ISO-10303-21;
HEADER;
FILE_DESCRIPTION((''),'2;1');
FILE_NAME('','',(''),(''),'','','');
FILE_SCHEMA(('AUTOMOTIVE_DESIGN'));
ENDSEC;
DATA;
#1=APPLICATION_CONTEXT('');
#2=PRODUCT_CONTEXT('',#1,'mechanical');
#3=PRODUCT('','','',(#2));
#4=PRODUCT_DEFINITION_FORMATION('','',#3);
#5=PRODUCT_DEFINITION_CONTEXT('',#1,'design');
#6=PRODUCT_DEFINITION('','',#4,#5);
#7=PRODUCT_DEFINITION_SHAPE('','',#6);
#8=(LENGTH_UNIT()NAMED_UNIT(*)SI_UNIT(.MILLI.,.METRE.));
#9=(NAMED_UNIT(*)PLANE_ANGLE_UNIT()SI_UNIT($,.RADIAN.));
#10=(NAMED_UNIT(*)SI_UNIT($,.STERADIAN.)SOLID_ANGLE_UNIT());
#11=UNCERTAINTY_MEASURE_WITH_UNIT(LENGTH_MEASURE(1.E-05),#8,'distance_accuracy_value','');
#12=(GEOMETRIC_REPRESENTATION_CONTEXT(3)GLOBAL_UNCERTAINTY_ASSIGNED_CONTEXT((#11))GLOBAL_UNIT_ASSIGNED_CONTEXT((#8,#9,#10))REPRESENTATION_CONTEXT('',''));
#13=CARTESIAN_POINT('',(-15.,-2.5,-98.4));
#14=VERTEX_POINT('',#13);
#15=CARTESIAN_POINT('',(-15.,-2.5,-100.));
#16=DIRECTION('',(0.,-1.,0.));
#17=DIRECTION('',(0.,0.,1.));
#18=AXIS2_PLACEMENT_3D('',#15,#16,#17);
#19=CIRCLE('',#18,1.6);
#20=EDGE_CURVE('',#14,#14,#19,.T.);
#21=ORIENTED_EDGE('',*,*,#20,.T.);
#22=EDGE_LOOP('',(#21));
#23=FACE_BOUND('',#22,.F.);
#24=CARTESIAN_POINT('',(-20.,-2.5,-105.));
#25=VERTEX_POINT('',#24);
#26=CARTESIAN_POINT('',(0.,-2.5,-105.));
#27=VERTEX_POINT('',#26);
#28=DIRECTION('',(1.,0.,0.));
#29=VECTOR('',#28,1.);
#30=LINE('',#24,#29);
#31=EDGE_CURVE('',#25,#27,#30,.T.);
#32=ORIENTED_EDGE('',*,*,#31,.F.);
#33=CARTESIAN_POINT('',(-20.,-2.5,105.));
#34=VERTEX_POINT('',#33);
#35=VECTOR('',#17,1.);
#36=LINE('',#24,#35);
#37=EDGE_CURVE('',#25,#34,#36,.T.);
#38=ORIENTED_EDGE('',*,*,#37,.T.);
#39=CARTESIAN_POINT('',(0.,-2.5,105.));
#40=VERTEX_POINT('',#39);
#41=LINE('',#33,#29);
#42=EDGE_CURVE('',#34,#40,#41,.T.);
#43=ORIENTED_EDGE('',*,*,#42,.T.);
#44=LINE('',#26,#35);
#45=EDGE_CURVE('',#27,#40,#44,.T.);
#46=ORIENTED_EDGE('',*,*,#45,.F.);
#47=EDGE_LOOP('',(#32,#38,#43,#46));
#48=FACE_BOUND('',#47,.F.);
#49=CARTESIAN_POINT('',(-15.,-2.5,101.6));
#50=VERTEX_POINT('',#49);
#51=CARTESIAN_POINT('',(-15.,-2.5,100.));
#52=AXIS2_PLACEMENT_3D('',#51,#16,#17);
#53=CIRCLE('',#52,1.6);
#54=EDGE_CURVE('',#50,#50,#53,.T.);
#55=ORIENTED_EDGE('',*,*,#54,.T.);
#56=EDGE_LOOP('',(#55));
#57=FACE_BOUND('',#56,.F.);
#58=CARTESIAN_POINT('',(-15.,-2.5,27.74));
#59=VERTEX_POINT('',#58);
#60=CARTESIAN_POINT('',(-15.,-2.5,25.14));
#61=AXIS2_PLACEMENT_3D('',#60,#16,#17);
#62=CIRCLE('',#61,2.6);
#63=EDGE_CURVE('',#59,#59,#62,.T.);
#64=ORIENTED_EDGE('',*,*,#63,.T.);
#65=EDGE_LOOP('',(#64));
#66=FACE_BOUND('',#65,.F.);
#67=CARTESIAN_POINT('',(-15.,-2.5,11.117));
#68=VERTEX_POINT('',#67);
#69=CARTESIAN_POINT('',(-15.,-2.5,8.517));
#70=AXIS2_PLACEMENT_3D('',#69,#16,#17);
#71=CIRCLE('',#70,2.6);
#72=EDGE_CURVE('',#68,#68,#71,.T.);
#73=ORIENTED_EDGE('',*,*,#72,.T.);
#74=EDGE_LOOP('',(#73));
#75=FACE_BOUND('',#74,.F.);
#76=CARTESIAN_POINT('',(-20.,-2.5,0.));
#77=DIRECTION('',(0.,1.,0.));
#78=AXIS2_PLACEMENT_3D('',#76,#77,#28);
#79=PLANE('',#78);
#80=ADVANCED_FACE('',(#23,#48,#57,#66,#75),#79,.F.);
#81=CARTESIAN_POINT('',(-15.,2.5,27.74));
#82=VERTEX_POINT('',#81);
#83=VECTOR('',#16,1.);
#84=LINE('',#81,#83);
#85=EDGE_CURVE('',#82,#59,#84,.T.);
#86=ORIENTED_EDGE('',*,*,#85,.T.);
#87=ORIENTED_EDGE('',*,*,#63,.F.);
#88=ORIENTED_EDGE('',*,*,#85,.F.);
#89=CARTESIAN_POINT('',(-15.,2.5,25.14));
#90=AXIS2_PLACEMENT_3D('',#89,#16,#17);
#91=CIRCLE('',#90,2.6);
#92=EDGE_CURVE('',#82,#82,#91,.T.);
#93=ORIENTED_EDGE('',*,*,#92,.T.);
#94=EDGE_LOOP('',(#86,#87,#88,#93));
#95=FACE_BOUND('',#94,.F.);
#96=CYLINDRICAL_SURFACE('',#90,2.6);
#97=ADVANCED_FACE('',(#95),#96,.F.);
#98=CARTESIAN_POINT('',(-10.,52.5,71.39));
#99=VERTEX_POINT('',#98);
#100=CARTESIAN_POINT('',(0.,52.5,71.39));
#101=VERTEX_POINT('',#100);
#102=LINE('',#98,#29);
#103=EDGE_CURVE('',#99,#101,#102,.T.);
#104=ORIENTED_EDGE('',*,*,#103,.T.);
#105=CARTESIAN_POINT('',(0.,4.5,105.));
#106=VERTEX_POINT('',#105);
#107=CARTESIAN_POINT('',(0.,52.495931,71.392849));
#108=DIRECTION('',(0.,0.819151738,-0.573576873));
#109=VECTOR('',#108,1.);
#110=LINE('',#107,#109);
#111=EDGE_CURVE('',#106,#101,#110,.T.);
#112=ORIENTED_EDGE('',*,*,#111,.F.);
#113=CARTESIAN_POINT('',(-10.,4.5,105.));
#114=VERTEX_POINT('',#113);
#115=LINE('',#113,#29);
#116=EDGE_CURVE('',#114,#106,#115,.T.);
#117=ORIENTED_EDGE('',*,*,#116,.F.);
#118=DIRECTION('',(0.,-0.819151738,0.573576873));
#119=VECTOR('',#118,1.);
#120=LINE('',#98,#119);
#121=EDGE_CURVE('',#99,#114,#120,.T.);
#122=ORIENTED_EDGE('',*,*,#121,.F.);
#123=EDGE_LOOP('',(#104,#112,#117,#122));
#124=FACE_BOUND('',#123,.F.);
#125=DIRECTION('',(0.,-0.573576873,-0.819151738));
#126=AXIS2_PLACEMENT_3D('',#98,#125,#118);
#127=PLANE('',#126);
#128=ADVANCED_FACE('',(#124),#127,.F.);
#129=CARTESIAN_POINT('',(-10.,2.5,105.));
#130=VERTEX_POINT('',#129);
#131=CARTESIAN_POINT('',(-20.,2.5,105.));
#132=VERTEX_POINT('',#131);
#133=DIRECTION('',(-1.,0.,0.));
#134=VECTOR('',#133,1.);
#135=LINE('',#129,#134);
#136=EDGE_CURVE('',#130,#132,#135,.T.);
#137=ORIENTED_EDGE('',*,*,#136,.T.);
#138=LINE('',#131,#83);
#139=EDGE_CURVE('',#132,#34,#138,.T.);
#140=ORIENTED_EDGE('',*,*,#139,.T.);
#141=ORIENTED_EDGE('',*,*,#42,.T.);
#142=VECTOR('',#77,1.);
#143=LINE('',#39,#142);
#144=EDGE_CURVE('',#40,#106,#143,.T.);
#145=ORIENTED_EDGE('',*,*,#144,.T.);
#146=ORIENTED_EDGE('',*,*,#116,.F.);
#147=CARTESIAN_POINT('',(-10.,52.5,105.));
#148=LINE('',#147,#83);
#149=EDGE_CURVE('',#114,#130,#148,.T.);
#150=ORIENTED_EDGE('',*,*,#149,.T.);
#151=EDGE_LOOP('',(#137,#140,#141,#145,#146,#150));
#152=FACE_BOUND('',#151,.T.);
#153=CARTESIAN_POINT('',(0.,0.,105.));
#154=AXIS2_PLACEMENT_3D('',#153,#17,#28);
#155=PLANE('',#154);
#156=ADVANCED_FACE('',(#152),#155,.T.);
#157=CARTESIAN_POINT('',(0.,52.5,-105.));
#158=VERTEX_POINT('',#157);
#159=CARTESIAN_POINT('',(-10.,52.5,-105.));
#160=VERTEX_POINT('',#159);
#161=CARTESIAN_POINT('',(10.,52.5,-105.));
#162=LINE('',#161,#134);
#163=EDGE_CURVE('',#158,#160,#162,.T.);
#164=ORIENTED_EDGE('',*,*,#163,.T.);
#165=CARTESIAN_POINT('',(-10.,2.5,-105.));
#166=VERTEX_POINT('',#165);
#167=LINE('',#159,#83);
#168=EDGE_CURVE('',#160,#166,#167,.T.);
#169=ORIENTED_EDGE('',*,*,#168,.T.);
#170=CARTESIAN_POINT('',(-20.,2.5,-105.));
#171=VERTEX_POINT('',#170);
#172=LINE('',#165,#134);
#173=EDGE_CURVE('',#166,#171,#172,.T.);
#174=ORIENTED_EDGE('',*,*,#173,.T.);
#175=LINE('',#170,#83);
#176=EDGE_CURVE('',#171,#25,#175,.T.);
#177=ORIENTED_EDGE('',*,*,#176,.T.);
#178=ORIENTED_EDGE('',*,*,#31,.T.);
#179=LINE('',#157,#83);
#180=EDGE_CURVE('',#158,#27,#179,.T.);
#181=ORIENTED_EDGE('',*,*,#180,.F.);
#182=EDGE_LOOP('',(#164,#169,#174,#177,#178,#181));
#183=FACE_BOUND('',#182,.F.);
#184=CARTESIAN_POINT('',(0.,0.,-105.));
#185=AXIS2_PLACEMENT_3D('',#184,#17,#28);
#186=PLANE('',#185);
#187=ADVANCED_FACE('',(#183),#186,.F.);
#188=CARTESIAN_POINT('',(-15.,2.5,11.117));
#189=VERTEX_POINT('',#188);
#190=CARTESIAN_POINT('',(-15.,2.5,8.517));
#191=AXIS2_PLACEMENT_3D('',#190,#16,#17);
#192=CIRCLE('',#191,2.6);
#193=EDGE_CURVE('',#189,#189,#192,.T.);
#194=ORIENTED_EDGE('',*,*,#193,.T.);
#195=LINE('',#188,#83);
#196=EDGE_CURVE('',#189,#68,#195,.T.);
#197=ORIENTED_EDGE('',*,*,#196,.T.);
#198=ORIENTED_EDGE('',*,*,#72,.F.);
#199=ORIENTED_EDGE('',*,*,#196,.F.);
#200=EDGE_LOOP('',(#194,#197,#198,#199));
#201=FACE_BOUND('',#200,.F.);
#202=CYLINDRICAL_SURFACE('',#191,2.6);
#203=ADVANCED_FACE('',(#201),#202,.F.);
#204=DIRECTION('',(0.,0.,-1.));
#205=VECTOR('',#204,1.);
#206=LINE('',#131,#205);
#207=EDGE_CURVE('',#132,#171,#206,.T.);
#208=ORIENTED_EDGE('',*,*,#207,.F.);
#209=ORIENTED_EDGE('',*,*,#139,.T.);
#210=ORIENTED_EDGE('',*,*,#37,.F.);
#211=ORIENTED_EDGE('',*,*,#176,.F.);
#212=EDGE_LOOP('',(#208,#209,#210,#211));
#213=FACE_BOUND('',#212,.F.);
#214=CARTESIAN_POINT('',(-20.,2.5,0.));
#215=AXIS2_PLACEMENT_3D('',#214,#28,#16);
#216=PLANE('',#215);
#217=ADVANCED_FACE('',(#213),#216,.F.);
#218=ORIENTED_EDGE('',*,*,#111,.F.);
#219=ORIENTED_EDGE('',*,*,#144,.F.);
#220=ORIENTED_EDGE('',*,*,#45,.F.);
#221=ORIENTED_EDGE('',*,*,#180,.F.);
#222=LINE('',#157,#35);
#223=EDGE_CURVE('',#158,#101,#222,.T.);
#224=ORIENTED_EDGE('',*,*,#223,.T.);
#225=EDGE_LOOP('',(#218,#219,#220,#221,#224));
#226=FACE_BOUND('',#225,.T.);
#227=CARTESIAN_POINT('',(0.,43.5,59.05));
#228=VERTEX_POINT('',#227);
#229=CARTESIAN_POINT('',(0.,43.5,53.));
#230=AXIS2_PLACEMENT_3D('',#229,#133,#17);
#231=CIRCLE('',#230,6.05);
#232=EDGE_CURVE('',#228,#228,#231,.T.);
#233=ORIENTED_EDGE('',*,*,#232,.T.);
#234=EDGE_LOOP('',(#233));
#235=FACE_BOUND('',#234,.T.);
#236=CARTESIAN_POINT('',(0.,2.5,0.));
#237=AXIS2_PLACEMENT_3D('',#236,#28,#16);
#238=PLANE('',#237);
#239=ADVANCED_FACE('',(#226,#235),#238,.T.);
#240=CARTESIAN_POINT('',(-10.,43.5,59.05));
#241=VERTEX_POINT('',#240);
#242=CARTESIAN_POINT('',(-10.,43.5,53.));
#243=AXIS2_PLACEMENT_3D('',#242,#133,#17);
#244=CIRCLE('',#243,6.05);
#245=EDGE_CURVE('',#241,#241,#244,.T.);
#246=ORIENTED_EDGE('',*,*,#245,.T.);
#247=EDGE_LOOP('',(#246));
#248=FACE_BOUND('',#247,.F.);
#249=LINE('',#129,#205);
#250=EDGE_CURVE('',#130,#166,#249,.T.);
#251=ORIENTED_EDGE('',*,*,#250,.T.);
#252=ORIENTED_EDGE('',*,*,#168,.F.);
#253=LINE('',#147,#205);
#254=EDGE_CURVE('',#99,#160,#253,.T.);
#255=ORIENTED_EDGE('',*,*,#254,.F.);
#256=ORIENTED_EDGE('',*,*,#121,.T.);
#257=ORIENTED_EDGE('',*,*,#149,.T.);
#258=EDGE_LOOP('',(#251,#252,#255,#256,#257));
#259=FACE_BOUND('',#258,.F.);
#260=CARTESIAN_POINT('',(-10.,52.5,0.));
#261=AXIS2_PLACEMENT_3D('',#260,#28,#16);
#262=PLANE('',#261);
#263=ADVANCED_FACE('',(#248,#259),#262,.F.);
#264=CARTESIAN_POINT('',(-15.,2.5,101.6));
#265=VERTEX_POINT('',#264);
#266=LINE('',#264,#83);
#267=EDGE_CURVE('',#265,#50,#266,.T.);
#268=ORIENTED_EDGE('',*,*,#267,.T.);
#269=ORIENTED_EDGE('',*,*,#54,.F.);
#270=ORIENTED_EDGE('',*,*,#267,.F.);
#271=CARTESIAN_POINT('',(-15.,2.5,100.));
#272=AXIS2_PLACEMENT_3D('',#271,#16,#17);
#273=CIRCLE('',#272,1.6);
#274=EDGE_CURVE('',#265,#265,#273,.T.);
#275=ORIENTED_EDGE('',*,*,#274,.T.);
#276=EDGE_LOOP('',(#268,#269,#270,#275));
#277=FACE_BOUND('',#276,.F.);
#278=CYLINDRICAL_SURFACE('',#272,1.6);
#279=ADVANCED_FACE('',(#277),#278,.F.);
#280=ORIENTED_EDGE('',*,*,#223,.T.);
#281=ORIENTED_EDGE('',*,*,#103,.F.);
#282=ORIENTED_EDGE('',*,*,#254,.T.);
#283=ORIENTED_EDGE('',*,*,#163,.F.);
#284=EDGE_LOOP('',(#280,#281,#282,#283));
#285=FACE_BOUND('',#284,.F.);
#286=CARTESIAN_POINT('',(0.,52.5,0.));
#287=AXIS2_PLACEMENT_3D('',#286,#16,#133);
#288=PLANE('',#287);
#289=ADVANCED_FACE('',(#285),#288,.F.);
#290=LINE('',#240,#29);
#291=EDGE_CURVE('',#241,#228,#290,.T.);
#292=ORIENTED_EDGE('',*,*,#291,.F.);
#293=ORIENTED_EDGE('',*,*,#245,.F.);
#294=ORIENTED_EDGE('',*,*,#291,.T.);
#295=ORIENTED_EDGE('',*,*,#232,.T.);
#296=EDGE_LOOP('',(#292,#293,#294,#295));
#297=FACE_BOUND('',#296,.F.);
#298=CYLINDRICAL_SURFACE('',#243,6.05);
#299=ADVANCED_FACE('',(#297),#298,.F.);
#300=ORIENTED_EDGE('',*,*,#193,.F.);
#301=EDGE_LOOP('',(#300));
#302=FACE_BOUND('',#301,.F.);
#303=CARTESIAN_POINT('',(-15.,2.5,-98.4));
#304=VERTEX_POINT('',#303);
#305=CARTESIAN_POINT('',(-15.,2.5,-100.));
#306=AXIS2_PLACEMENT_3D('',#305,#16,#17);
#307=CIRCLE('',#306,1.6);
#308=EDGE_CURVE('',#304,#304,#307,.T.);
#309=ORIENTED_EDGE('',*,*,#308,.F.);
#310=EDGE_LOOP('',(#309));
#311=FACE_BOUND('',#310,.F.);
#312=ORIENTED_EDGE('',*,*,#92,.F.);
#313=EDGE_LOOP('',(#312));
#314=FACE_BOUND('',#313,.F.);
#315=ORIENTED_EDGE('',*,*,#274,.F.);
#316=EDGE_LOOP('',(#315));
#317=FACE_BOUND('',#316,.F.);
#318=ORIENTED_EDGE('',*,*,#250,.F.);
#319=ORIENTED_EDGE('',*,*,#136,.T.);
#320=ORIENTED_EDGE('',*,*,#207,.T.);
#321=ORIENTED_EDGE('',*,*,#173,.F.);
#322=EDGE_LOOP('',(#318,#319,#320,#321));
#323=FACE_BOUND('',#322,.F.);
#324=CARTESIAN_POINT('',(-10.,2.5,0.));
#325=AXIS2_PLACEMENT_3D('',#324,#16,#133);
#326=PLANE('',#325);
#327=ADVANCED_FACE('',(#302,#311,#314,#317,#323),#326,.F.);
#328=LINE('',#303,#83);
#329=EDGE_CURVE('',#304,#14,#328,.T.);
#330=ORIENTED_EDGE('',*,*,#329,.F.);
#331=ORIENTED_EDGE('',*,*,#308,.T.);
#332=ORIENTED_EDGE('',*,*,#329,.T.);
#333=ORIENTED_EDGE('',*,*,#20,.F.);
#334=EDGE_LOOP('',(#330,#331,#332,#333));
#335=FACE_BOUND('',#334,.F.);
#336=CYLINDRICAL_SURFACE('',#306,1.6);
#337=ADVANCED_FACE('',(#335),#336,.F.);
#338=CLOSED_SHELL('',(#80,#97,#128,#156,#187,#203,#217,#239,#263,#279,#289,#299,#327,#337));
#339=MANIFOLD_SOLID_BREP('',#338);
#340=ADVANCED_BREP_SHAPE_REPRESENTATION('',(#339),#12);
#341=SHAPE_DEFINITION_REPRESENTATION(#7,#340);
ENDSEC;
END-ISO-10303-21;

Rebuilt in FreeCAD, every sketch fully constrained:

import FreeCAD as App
import Part
import Sketcher

V = App.Vector
Q = App.Units.Quantity


def add_polygon(sketch, points):
    """Adds a closed chain of lines whose ends are joined by coincident constraints."""
    first, n = sketch.GeometryCount, len(points)
    for a, b in zip(points, points[1:] + points[:1]):
        sketch.addGeometry(Part.LineSegment(App.Vector(*a, 0), App.Vector(*b, 0)), False)
    for i in range(n):
        sketch.addConstraint(Sketcher.Constraint("Coincident", first + i, 2, first + (i + 1) % n, 1))

doc = App.newDocument("Part")
body = doc.addObject("PartDesign::Body", "Body")

sketch1 = doc.addObject("Sketcher::SketchObject", "Sketch")
body.addObject(sketch1)
sketch1.AttachmentSupport = (doc.XY_Plane, [""])
sketch1.MapMode = "FlatFace"
add_polygon(sketch1, [(-20, 2.5), (-20, -2.5), (0, -2.5), (0, 52.5), (-10, 52.5), (-10, 2.5)])
sketch1.addConstraint([
    Sketcher.Constraint("Vertical", 0),
    Sketcher.Constraint("Horizontal", 1),
    Sketcher.Constraint("Vertical", 2),
    Sketcher.Constraint("Horizontal", 3),
    Sketcher.Constraint("Vertical", 4),
    Sketcher.Constraint("Horizontal", 5),
    Sketcher.Constraint("PointOnObject", 1, 2, -2),
    Sketcher.Constraint("Equal", 3, 5),
    Sketcher.Constraint("DistanceX", 1, 1, 1, 2, 20.0),
    Sketcher.Constraint("DistanceY", 0, 2, 0, 1, 5.0),
    Sketcher.Constraint("DistanceY", 4, 2, 4, 1, 50.0),
    Sketcher.Constraint("DistanceY", 0, 2, -1, 1, 2.5),
])
pad1 = doc.addObject("PartDesign::Pad", "Pad")
body.addObject(pad1)
pad1.Profile = sketch1
pad1.Length = 210
pad1.Midplane = True

sketch2 = doc.addObject("Sketcher::SketchObject", "Sketch001")
body.addObject(sketch2)
sketch2.AttachmentSupport = (doc.YZ_Plane, [""])
sketch2.MapMode = "FlatFace"
sketch2.AttachmentOffset = App.Placement(V(0, 0, -10), App.Rotation())
add_polygon(sketch2, [(52.5, 105), (52.5, 71.39), (4.5, 105)])
sketch2.addConstraint([
    Sketcher.Constraint("Vertical", 0),
    Sketcher.Constraint("Horizontal", 2),
    Sketcher.Constraint("Angle", 1, Q("145 deg")),
    Sketcher.Constraint("DistanceX", 2, 1, 2, 2, 48.0),
    Sketcher.Constraint("DistanceY", -1, 1, 1, 2, 105.0),
    Sketcher.Constraint("DistanceX", -1, 1, 0, 2, 52.5),
])
pocket1 = doc.addObject("PartDesign::Pocket", "Pocket")
body.addObject(pocket1)
pocket1.Profile = sketch2
pocket1.Length = 210
pocket1.Reversed = True

sketch3 = doc.addObject("Sketcher::SketchObject", "Sketch002")
body.addObject(sketch3)
sketch3.AttachmentSupport = (doc.YZ_Plane, [""])
sketch3.MapMode = "FlatFace"
sketch3.AttachmentOffset = App.Placement(V(0, 0, -10), App.Rotation())
sketch3.addGeometry(Part.Circle(V(43.5, 53, 0), V(0, 0, 1), 6.05), False)
sketch3.addConstraint([
    Sketcher.Constraint("Diameter", 0, 12.1),
    Sketcher.Constraint("DistanceY", -1, 1, 0, 3, 53.0),
    Sketcher.Constraint("DistanceX", -1, 1, 0, 3, 43.5),
])
pocket2 = doc.addObject("PartDesign::Pocket", "Pocket001")
body.addObject(pocket2)
pocket2.Profile = sketch3
pocket2.Length = 210
pocket2.Reversed = True

sketch4 = doc.addObject("Sketcher::SketchObject", "Sketch003")
body.addObject(sketch4)
sketch4.AttachmentSupport = (doc.XZ_Plane, [""])
sketch4.MapMode = "FlatFace"
sketch4.AttachmentOffset = App.Placement(V(0, 0, -2.5), App.Rotation())
sketch4.addGeometry([
    Part.Circle(V(-15, -100, 0), V(0, 0, 1), 1.6),
    Part.Circle(V(-15, 100, 0), V(0, 0, 1), 1.6),
], False)
sketch4.addConstraint([
    Sketcher.Constraint("Equal", 0, 1),
    Sketcher.Constraint("Symmetric", 0, 3, 1, 3, -1),
    Sketcher.Constraint("Diameter", 0, 3.2),
    Sketcher.Constraint("DistanceX", 0, 3, -1, 1, 15.0),
    Sketcher.Constraint("DistanceY", 0, 3, -1, 1, 100.0),
])
doc.recompute()
hole = doc.addObject("PartDesign::Hole", "Hole")
body.addObject(hole)
hole.Profile = sketch4
hole.ThreadType = "None"
hole.Diameter = 3.2
hole.DepthType = "ThroughAll"
hole.Reversed = True

sketch5 = doc.addObject("Sketcher::SketchObject", "Sketch004")
body.addObject(sketch5)
sketch5.AttachmentSupport = (doc.XZ_Plane, [""])
sketch5.MapMode = "FlatFace"
sketch5.AttachmentOffset = App.Placement(V(0, 0, -2.5), App.Rotation())
sketch5.addGeometry([
    Part.Circle(V(-15, 25.14, 0), V(0, 0, 1), 2.6),
    Part.Circle(V(-15, 8.517, 0), V(0, 0, 1), 2.6),
], False)
sketch5.addConstraint([
    Sketcher.Constraint("Equal", 0, 1),
    Sketcher.Constraint("Vertical", 0, 3, 1, 3),
    Sketcher.Constraint("Diameter", 0, 5.2),
    Sketcher.Constraint("DistanceX", 0, 3, -1, 1, 15.0),
    Sketcher.Constraint("DistanceY", -1, 1, 0, 3, 25.14),
    Sketcher.Constraint("DistanceY", -1, 1, 1, 3, 8.517),
])
doc.recompute()
hole2 = doc.addObject("PartDesign::Hole", "Hole001")
body.addObject(hole2)
hole2.Profile = sketch5
hole2.ThreadType = "None"
hole2.Diameter = 5.2
hole2.DepthType = "ThroughAll"
hole2.Reversed = True

doc.recompute()
